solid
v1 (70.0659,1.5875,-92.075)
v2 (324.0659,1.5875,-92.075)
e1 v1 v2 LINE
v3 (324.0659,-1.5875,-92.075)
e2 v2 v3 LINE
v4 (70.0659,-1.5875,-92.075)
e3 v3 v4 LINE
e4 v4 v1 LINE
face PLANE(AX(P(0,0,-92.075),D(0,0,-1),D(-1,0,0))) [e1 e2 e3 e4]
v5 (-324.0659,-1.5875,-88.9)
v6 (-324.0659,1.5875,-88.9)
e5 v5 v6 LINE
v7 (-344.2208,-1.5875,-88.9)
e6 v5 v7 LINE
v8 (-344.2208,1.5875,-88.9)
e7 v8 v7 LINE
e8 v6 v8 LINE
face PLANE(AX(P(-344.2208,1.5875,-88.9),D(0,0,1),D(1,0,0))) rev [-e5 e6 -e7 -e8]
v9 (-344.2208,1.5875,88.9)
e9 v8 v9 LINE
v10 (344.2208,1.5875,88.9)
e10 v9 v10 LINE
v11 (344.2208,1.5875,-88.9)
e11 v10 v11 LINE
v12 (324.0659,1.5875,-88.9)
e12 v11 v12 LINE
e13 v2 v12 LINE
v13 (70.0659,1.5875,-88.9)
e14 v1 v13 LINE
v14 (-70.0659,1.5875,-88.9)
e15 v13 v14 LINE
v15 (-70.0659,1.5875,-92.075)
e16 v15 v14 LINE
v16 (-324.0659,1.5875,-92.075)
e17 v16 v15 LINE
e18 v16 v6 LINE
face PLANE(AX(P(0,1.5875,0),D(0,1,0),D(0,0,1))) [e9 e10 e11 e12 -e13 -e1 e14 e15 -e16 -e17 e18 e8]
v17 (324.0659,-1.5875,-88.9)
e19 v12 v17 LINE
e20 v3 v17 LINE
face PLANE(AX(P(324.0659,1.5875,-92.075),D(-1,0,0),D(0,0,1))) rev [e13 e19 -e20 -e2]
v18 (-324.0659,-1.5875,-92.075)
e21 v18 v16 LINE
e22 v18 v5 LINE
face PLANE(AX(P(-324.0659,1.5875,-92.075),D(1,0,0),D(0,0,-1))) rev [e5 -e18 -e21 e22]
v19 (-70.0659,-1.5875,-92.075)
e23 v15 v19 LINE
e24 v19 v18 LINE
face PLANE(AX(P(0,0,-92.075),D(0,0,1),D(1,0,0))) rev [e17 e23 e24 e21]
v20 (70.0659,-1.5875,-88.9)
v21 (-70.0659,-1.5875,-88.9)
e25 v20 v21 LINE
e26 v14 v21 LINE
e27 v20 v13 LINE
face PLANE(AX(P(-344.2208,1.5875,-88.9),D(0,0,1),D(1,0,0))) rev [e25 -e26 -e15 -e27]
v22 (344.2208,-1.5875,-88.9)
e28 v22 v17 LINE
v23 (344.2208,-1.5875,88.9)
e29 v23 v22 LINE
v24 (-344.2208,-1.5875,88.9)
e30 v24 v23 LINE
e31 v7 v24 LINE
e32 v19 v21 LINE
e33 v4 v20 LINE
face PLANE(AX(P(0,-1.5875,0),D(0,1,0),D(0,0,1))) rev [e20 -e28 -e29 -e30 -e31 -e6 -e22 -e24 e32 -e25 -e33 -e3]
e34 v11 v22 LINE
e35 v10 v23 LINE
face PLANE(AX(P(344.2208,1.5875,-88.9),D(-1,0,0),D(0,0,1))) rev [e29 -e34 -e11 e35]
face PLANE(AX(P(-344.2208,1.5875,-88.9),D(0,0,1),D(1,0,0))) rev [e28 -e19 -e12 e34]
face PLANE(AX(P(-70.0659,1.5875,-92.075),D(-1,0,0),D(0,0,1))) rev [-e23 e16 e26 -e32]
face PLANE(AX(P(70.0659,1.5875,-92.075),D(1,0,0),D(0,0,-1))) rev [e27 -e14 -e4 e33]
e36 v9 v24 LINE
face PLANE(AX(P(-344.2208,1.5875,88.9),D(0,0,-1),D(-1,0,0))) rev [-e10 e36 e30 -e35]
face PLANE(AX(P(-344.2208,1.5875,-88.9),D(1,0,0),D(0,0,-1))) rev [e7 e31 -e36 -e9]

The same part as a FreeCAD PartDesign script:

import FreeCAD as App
import Part
import Sketcher

V = App.Vector
Q = App.Units.Quantity


def add_polygon(sketch, points):
    """Adds a closed chain of lines whose ends are joined by coincident constraints."""
    first, n = sketch.GeometryCount, len(points)
    for a, b in zip(points, points[1:] + points[:1]):
        sketch.addGeometry(Part.LineSegment(App.Vector(*a, 0), App.Vector(*b, 0)), False)
    for i in range(n):
        sketch.addConstraint(Sketcher.Constraint("Coincident", first + i, 2, first + (i + 1) % n, 1))

doc = App.newDocument("Part")
body = doc.addObject("PartDesign::Body", "Body")

# Sketch on XZ plane
sketch1 = body.newObject("Sketcher::SketchObject", "Sketch")
sketch1.AttachmentSupport = (doc.getObject("XZ_Plane"), [""])
sketch1.MapMode = "FlatFace"
add_polygon(sketch1, [(-344, -89), (-344, 89), (344, 89), (344, -89)])  # lines 0-3
sketch1.addConstraint(Sketcher.Constraint("Vertical", 0))
sketch1.addConstraint(Sketcher.Constraint("Horizontal", 1))
sketch1.addConstraint(Sketcher.Constraint("Vertical", 2))
sketch1.addConstraint(Sketcher.Constraint("Horizontal", 3))
sketch1.addConstraint(Sketcher.Constraint("Symmetric", 0, 2, 2, 2, -1, 1))
sketch1.addConstraint(Sketcher.Constraint("DistanceY", 0, 1, 0, 2, Q("7 in")))
sketch1.addConstraint(Sketcher.Constraint("DistanceX", 1, 1, 1, 2, Q("27.104 in")))
pad1 = body.newObject("PartDesign::Pad", "Pad")
pad1.Profile = sketch1
pad1.Length = Q("0.125 in")
pad1.Midplane = True

# Sketch on XY plane
sketch2 = body.newObject("Sketcher::SketchObject", "Sketch001")
sketch2.AttachmentSupport = (doc.getObject("XY_Plane"), [""])
sketch2.MapMode = "FlatFace"
sketch2.AttachmentOffset = App.Placement(V(0, 0, -3.5 * 25.4), App.Rotation())
add_polygon(sketch2, [(324.1, 1.6), (324.1, -1.6), (70.1, -1.6), (70.1, 1.6)])  # lines 0-3
add_polygon(sketch2, [(-70.1, 1.6), (-70.1, -1.6), (-324.1, -1.6), (-324.1, 1.6)])  # lines 4-7
sketch2.addConstraint(Sketcher.Constraint("Vertical", 0))
sketch2.addConstraint(Sketcher.Constraint("Horizontal", 1))
sketch2.addConstraint(Sketcher.Constraint("Vertical", 2))
sketch2.addConstraint(Sketcher.Constraint("Horizontal", 3))
sketch2.addConstraint(Sketcher.Constraint("Vertical", 4))
sketch2.addConstraint(Sketcher.Constraint("Horizontal", 5))
sketch2.addConstraint(Sketcher.Constraint("Vertical", 6))
sketch2.addConstraint(Sketcher.Constraint("Horizontal", 7))
sketch2.addConstraint(Sketcher.Constraint("Symmetric", 2, 2, 4, 2, -1, 1))
sketch2.addConstraint(Sketcher.Constraint("Symmetric", 0, 2, 6, 2, -1, 1))
sketch2.addConstraint(Sketcher.Constraint("Horizontal", 1, 2, 4, 2))
sketch2.addConstraint(Sketcher.Constraint("DistanceX", 1, 2, 1, 1, Q("10 in")))
sketch2.addConstraint(Sketcher.Constraint("DistanceY", 0, 2, 0, 1, Q("0.125 in")))
sketch2.addConstraint(Sketcher.Constraint("DistanceX", 4, 2, 1, 2, Q("5.517 in")))
pad2 = body.newObject("PartDesign::Pad", "Pad001")
pad2.Profile = sketch2
pad2.Length = Q("0.125 in")
pad2.Reversed = True

doc.recompute()
